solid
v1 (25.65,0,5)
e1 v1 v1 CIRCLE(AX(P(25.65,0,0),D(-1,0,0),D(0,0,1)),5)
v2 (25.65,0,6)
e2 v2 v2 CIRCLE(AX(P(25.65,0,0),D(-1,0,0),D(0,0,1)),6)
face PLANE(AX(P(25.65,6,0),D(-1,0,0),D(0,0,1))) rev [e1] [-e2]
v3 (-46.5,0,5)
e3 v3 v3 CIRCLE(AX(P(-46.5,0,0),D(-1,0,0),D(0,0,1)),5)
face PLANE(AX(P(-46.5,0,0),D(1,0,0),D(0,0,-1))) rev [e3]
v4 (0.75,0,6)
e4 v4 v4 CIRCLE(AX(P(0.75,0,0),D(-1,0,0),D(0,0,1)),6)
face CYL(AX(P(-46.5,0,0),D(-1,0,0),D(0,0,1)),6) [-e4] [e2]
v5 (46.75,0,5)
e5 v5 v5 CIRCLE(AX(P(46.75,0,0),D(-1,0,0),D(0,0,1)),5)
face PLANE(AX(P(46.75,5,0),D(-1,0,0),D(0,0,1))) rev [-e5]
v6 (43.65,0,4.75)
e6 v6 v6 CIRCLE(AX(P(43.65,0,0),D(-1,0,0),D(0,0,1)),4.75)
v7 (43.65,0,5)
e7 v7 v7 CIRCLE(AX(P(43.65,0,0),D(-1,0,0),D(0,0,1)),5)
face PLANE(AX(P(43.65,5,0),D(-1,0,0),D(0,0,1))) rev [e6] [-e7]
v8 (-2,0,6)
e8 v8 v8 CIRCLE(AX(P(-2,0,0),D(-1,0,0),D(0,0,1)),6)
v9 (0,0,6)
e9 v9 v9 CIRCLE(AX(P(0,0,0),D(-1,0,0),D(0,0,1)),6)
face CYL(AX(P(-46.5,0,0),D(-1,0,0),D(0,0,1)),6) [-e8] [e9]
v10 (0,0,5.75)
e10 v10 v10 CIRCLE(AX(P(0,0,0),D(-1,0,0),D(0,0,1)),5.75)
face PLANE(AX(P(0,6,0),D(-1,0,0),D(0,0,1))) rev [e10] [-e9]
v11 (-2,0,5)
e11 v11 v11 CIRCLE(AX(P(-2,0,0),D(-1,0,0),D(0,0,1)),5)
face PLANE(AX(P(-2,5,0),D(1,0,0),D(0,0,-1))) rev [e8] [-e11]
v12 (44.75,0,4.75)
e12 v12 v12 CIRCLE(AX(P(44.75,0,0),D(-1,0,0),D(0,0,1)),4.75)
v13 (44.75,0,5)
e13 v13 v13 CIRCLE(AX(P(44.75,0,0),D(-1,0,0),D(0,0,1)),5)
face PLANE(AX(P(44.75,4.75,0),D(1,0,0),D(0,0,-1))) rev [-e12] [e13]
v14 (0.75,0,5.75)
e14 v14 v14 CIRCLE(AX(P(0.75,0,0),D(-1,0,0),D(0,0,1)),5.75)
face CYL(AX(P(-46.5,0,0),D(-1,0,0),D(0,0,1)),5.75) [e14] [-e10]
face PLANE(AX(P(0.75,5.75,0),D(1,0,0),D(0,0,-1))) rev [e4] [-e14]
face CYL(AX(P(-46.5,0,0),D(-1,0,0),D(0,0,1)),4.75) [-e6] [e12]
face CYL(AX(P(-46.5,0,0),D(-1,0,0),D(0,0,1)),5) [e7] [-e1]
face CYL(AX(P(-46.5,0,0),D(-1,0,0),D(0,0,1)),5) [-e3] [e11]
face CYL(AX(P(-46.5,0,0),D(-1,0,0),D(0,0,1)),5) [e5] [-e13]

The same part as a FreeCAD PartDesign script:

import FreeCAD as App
import Part
import Sketcher
from FreeCAD import Vector
Q = App.Units.Quantity

doc = App.newDocument("Part")
params = doc.addObject("Spreadsheet::Sheet", "Params")
for row, (alias, value) in enumerate([
    ("sketch1_width", "2 mm"),
    ("sketch1_width2", "18 mm"),
    ("sketch1_height", "5 mm"),
    ("sketch1_height2", "1 mm"),
    ("sketch1_width3", "1.1 mm"),
    ("revolution_angle", "360 deg"),
], start=1):
    params.set(f"A{row}", alias)
    params.set(f"B{row}", "=" + value)
    params.setAlias(f"B{row}", alias)

body = doc.addObject("PartDesign::Body", "Body")

# Sketch on XY plane
sketch1 = body.newObject("Sketcher::SketchObject", "Sketch")
sketch1.AttachmentSupport = (doc.getObject("XY_Plane"), [""])
sketch1.MapMode = "FlatFace"
sketch1.addGeometry([
    Part.LineSegment(Vector(-46.5, 5, 0), Vector(-46.5, 0, 0)),  # 0
    Part.LineSegment(Vector(-46.5, 0, 0), Vector(46.75, 0, 0)),  # 1
    Part.LineSegment(Vector(46.75, 0, 0), Vector(46.75, 5, 0)),  # 2
    Part.LineSegment(Vector(46.75, 5, 0), Vector(44.75, 5, 0)),  # 3
    Part.LineSegment(Vector(44.75, 5, 0), Vector(44.75, 4.75, 0)),  # 4
    Part.LineSegment(Vector(44.75, 4.75, 0), Vector(43.65, 4.75, 0)),  # 5
    Part.LineSegment(Vector(43.65, 4.75, 0), Vector(43.65, 5, 0)),  # 6
    Part.LineSegment(Vector(43.65, 5, 0), Vector(25.65, 5, 0)),  # 7
    Part.LineSegment(Vector(25.65, 5, 0), Vector(25.65, 6, 0)),  # 8
    Part.LineSegment(Vector(25.65, 6, 0), Vector(0.75, 6, 0)),  # 9
    Part.LineSegment(Vector(0.75, 6, 0), Vector(0.75, 5.75, 0)),  # 10
    Part.LineSegment(Vector(0.75, 5.75, 0), Vector(0, 5.75, 0)),  # 11
    Part.LineSegment(Vector(0, 5.75, 0), Vector(0, 6, 0)),  # 12
    Part.LineSegment(Vector(0, 6, 0), Vector(-2, 6, 0)),  # 13
    Part.LineSegment(Vector(-2, 6, 0), Vector(-2, 5, 0)),  # 14
    Part.LineSegment(Vector(-2, 5, 0), Vector(-46.5, 5, 0)),  # 15
], False)
sketch1.addConstraint([
    Sketcher.Constraint("Coincident", 0, 2, 1, 1),
    Sketcher.Constraint("Coincident", 1, 2, 2, 1),
    Sketcher.Constraint("Coincident", 2, 2, 3, 1),
    Sketcher.Constraint("Coincident", 3, 2, 4, 1),
    Sketcher.Constraint("Coincident", 4, 2, 5, 1),
    Sketcher.Constraint("Coincident", 5, 2, 6, 1),
    Sketcher.Constraint("Coincident", 6, 2, 7, 1),
    Sketcher.Constraint("Coincident", 7, 2, 8, 1),
    Sketcher.Constraint("Coincident", 8, 2, 9, 1),
    Sketcher.Constraint("Coincident", 9, 2, 10, 1),
    Sketcher.Constraint("Coincident", 10, 2, 11, 1),
    Sketcher.Constraint("Coincident", 11, 2, 12, 1),
    Sketcher.Constraint("Coincident", 12, 2, 13, 1),
    Sketcher.Constraint("Coincident", 13, 2, 14, 1),
    Sketcher.Constraint("Coincident", 14, 2, 15, 1),
    Sketcher.Constraint("Coincident", 15, 2, 0, 1),
    Sketcher.Constraint("Vertical", 0),
    Sketcher.Constraint("Horizontal", 1),
    Sketcher.Constraint("Vertical", 2),
    Sketcher.Constraint("Horizontal", 3),
    Sketcher.Constraint("Vertical", 4),
    Sketcher.Constraint("Horizontal", 5),
    Sketcher.Constraint("Vertical", 6),
    Sketcher.Constraint("Horizontal", 7),
    Sketcher.Constraint("Vertical", 8),
    Sketcher.Constraint("Horizontal", 9),
    Sketcher.Constraint("Vertical", 10),
    Sketcher.Constraint("Horizontal", 11),
    Sketcher.Constraint("Vertical", 12),
    Sketcher.Constraint("Horizontal", 13),
    Sketcher.Constraint("Vertical", 14),
    Sketcher.Constraint("Horizontal", 15),
    Sketcher.Constraint("PointOnObject", 0, 2, -1),
    Sketcher.Constraint("PointOnObject", 11, 2, -2),
    Sketcher.Constraint("Horizontal", 3, 2, 6, 2),
    Sketcher.Constraint("Horizontal", 9, 2, 12, 2),
    Sketcher.Constraint("Horizontal", 7, 2, 14, 2),
    Sketcher.Constraint("Equal", 3, 13),
    Sketcher.Constraint("Equal", 6, 10),
    Sketcher.Constraint("DistanceX", 3, 2, 3, 1, Q("2 mm")),
    Sketcher.Constraint("DistanceX", 7, 2, 7, 1, Q("18 mm")),
    Sketcher.Constraint("DistanceY", 0, 2, 0, 1, Q("5 mm")),
    Sketcher.Constraint("DistanceY", 8, 1, 8, 2, Q("1 mm")),
    Sketcher.Constraint("DistanceX", 5, 2, 5, 1, Q("1.1 mm")),
    Sketcher.Constraint("DistanceX", 9, 2, 9, 1, Q("24.9 mm")),
    Sketcher.Constraint("DistanceX", 15, 2, 15, 1, Q("44.5 mm")),
    Sketcher.Constraint("DistanceX", 1, 1, 1, 2, Q("93.25 mm")),
    Sketcher.Constraint("DistanceY", 4, 2, 4, 1, Q("0.25 mm")),
])
sketch1.setExpression("Constraints[39]", "Params.sketch1_width")
sketch1.setExpression("Constraints[40]", "Params.sketch1_width2")
sketch1.setExpression("Constraints[41]", "Params.sketch1_height")
sketch1.setExpression("Constraints[42]", "Params.sketch1_height2")
sketch1.setExpression("Constraints[43]", "Params.sketch1_width3")
revolution = body.newObject("PartDesign::Revolution", "Revolution")
revolution.Profile = sketch1
revolution.ReferenceAxis = (sketch1, ["H_Axis"])
revolution.setExpression("Angle", "Params.revolution_angle")

doc.recompute()
